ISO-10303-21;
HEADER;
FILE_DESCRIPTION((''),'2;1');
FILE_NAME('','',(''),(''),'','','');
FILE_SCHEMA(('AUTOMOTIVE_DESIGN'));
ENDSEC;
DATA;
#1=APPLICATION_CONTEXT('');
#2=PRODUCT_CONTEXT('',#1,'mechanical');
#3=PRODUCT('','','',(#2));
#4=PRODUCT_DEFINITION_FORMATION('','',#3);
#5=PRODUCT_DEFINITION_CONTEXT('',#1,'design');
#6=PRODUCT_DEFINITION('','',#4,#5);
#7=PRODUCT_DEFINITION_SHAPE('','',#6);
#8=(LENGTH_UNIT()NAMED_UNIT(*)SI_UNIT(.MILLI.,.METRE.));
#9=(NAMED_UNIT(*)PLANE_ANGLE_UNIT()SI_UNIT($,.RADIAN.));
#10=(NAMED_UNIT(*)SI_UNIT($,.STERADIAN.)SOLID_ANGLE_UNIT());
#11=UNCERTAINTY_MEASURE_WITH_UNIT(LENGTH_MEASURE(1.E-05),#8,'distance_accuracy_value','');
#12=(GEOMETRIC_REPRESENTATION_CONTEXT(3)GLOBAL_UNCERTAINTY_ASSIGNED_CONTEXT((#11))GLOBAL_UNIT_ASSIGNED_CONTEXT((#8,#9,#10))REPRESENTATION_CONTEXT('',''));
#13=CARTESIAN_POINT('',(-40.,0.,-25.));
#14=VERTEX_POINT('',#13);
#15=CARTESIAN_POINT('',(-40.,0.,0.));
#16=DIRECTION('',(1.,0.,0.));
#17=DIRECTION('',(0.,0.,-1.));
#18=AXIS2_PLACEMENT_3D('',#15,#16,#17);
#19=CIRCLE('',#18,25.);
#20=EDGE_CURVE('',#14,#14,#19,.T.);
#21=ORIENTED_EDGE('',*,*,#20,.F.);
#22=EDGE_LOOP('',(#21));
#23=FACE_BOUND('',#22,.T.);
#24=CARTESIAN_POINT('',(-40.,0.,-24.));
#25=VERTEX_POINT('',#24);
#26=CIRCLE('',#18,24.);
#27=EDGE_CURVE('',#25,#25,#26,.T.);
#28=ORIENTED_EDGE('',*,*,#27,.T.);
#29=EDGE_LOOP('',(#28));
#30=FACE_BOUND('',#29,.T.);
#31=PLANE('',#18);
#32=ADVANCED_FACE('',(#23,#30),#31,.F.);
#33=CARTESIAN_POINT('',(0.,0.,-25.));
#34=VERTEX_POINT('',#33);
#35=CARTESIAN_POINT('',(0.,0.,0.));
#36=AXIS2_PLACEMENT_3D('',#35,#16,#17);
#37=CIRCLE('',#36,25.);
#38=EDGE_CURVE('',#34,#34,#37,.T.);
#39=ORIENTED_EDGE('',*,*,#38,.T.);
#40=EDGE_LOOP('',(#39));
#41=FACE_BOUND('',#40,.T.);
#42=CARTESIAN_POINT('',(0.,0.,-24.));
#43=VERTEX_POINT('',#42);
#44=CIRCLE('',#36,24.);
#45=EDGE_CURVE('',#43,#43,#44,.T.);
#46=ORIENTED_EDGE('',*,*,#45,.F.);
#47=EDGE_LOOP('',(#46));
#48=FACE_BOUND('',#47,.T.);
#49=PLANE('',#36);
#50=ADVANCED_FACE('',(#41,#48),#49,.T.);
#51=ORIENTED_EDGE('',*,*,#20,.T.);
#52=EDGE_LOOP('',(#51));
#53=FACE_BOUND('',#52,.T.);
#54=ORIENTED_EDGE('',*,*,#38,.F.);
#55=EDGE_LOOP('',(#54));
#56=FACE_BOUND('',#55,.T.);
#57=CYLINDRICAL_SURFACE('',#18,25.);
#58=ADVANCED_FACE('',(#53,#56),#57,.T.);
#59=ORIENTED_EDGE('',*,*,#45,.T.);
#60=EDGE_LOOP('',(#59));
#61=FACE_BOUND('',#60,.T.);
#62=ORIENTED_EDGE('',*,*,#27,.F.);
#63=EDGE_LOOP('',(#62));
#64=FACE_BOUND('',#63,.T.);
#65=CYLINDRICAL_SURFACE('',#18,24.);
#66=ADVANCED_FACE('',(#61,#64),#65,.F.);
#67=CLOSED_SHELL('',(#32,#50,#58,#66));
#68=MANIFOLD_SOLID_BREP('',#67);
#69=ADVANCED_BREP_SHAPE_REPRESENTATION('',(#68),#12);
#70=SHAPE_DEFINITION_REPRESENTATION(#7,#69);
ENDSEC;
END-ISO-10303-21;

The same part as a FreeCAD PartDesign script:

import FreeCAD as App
import Part
import Sketcher
from FreeCAD import Vector

doc = App.newDocument("Part")
body = doc.addObject("PartDesign::Body", "Body")

# Sketch on YZ plane
sketch1 = body.newObject("Sketcher::SketchObject", "Sketch")
sketch1.AttachmentSupport = (doc.getObject("YZ_Plane"), [""])
sketch1.MapMode = "FlatFace"
sketch1.addGeometry(Part.Circle(Vector(0, 0, 0), Vector(0, 0, 1), 25), False)
sketch1.addConstraint([
    Sketcher.Constraint("Coincident", 0, 3, -1, 1),
    Sketcher.Constraint("Diameter", 0, 50.0),
])
pad1 = body.newObject("PartDesign::Pad", "Pad")
pad1.Profile = sketch1
pad1.Length = 40
pad1.Reversed = True

# Sketch on YZ plane
sketch2 = body.newObject("Sketcher::SketchObject", "Sketch001")
sketch2.AttachmentSupport = (doc.getObject("YZ_Plane"), [""])
sketch2.MapMode = "FlatFace"
sketch2.addGeometry(Part.Circle(Vector(0, 0, 0), Vector(0, 0, 1), 24), False)
sketch2.addConstraint([
    Sketcher.Constraint("Coincident", 0, 3, -1, 1),
    Sketcher.Constraint("Diameter", 0, 48.0),
])
pocket1 = body.newObject("PartDesign::Pocket", "Pocket")
pocket1.Profile = sketch2
pocket1.Type = "ThroughAll"

doc.recompute()
